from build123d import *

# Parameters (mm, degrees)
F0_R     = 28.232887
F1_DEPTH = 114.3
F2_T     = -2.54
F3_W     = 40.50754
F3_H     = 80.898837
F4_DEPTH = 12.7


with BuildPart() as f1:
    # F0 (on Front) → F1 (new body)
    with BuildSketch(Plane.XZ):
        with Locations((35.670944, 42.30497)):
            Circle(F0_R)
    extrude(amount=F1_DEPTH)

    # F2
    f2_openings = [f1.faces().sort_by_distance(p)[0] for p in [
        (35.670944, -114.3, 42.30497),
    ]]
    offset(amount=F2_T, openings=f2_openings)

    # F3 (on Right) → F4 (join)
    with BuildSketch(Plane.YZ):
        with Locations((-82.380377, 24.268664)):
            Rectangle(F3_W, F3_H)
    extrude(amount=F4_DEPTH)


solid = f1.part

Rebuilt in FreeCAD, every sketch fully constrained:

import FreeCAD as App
import Part
import Sketcher


def faces_at(feature, points):
    """Names of the faces that lie closest to the given points."""
    faces = feature.Shape.Faces
    near = lambda p: min(range(len(faces)), key=lambda i: faces[i].distToShape(Part.Vertex(*p))[0])
    return sorted({f"Face{near(p) + 1}" for p in points})


def add_polygon(sketch, points):
    """Adds a closed chain of lines whose ends are joined by coincident constraints."""
    first, n = sketch.GeometryCount, len(points)
    for a, b in zip(points, points[1:] + points[:1]):
        sketch.addGeometry(Part.LineSegment(App.Vector(*a, 0), App.Vector(*b, 0)), False)
    for i in range(n):
        sketch.addConstraint(Sketcher.Constraint("Coincident", first + i, 2, first + (i + 1) % n, 1))

doc = App.newDocument("Part")
params = doc.addObject("Spreadsheet::Sheet", "Params")
for row, (alias, value) in enumerate([
    ("pad1_length", "4.5 in"),
    ("thickness_wall", "0.1 in"),
    ("pad2_length", "0.5 in"),
], start=1):
    params.set(f"A{row}", alias)
    params.set(f"B{row}", "=" + value)
    params.setAlias(f"B{row}", alias)

body = doc.addObject("PartDesign::Body", "Body")

# Sketch on XZ plane
sketch1 = body.newObject("Sketcher::SketchObject", "Sketch")
sketch1.AttachmentSupport = (doc.getObject("XZ_Plane"), [""])
sketch1.MapMode = "FlatFace"
sketch1.addGeometry(Part.Circle(App.Vector(36, 42, 0), App.Vector(0, 0, 1), 28), False)
sketch1.addConstraint(Sketcher.Constraint("Diameter", 0, 56.465774))
sketch1.addConstraint(Sketcher.Constraint("DistanceY", -1, 1, 0, 3, 42.30497))
sketch1.addConstraint(Sketcher.Constraint("DistanceX", -1, 1, 0, 3, 35.670944))
pad1 = body.newObject("PartDesign::Pad", "Pad")
pad1.Profile = sketch1
pad1.setExpression("Length", "Params.pad1_length")
doc.recompute()

thickness = body.newObject("PartDesign::Thickness", "Thickness")
thickness.Base = (pad1, faces_at(pad1, [(35.671, -114.3, 42.305)]))
thickness.setExpression("Value", "Params.thickness_wall")
thickness.Reversed = True
thickness.Join = "Arc"

# Sketch on YZ plane
sketch2 = body.newObject("Sketcher::SketchObject", "Sketch001")
sketch2.AttachmentSupport = (doc.getObject("YZ_Plane"), [""])
sketch2.MapMode = "FlatFace"
add_polygon(sketch2, [(-103, 65), (-103, -16), (-62, -16), (-62, 65)])  # lines 0-3
sketch2.addConstraint(Sketcher.Constraint("Vertical", 0))
sketch2.addConstraint(Sketcher.Constraint("Horizontal", 1))
sketch2.addConstraint(Sketcher.Constraint("Vertical", 2))
sketch2.addConstraint(Sketcher.Constraint("Horizontal", 3))
sketch2.addConstraint(Sketcher.Constraint("DistanceX", 1, 1, 1, 2, 40.50754))
sketch2.addConstraint(Sketcher.Constraint("DistanceY", 0, 2, 0, 1, 80.898837))
sketch2.addConstraint(Sketcher.Constraint("DistanceX", 0, 2, -1, 1, 102.634147))
sketch2.addConstraint(Sketcher.Constraint("DistanceY", 0, 2, -1, 1, 16.180754))
pad2 = body.newObject("PartDesign::Pad", "Pad001")
pad2.Profile = sketch2
pad2.setExpression("Length", "Params.pad2_length")

doc.recompute()
